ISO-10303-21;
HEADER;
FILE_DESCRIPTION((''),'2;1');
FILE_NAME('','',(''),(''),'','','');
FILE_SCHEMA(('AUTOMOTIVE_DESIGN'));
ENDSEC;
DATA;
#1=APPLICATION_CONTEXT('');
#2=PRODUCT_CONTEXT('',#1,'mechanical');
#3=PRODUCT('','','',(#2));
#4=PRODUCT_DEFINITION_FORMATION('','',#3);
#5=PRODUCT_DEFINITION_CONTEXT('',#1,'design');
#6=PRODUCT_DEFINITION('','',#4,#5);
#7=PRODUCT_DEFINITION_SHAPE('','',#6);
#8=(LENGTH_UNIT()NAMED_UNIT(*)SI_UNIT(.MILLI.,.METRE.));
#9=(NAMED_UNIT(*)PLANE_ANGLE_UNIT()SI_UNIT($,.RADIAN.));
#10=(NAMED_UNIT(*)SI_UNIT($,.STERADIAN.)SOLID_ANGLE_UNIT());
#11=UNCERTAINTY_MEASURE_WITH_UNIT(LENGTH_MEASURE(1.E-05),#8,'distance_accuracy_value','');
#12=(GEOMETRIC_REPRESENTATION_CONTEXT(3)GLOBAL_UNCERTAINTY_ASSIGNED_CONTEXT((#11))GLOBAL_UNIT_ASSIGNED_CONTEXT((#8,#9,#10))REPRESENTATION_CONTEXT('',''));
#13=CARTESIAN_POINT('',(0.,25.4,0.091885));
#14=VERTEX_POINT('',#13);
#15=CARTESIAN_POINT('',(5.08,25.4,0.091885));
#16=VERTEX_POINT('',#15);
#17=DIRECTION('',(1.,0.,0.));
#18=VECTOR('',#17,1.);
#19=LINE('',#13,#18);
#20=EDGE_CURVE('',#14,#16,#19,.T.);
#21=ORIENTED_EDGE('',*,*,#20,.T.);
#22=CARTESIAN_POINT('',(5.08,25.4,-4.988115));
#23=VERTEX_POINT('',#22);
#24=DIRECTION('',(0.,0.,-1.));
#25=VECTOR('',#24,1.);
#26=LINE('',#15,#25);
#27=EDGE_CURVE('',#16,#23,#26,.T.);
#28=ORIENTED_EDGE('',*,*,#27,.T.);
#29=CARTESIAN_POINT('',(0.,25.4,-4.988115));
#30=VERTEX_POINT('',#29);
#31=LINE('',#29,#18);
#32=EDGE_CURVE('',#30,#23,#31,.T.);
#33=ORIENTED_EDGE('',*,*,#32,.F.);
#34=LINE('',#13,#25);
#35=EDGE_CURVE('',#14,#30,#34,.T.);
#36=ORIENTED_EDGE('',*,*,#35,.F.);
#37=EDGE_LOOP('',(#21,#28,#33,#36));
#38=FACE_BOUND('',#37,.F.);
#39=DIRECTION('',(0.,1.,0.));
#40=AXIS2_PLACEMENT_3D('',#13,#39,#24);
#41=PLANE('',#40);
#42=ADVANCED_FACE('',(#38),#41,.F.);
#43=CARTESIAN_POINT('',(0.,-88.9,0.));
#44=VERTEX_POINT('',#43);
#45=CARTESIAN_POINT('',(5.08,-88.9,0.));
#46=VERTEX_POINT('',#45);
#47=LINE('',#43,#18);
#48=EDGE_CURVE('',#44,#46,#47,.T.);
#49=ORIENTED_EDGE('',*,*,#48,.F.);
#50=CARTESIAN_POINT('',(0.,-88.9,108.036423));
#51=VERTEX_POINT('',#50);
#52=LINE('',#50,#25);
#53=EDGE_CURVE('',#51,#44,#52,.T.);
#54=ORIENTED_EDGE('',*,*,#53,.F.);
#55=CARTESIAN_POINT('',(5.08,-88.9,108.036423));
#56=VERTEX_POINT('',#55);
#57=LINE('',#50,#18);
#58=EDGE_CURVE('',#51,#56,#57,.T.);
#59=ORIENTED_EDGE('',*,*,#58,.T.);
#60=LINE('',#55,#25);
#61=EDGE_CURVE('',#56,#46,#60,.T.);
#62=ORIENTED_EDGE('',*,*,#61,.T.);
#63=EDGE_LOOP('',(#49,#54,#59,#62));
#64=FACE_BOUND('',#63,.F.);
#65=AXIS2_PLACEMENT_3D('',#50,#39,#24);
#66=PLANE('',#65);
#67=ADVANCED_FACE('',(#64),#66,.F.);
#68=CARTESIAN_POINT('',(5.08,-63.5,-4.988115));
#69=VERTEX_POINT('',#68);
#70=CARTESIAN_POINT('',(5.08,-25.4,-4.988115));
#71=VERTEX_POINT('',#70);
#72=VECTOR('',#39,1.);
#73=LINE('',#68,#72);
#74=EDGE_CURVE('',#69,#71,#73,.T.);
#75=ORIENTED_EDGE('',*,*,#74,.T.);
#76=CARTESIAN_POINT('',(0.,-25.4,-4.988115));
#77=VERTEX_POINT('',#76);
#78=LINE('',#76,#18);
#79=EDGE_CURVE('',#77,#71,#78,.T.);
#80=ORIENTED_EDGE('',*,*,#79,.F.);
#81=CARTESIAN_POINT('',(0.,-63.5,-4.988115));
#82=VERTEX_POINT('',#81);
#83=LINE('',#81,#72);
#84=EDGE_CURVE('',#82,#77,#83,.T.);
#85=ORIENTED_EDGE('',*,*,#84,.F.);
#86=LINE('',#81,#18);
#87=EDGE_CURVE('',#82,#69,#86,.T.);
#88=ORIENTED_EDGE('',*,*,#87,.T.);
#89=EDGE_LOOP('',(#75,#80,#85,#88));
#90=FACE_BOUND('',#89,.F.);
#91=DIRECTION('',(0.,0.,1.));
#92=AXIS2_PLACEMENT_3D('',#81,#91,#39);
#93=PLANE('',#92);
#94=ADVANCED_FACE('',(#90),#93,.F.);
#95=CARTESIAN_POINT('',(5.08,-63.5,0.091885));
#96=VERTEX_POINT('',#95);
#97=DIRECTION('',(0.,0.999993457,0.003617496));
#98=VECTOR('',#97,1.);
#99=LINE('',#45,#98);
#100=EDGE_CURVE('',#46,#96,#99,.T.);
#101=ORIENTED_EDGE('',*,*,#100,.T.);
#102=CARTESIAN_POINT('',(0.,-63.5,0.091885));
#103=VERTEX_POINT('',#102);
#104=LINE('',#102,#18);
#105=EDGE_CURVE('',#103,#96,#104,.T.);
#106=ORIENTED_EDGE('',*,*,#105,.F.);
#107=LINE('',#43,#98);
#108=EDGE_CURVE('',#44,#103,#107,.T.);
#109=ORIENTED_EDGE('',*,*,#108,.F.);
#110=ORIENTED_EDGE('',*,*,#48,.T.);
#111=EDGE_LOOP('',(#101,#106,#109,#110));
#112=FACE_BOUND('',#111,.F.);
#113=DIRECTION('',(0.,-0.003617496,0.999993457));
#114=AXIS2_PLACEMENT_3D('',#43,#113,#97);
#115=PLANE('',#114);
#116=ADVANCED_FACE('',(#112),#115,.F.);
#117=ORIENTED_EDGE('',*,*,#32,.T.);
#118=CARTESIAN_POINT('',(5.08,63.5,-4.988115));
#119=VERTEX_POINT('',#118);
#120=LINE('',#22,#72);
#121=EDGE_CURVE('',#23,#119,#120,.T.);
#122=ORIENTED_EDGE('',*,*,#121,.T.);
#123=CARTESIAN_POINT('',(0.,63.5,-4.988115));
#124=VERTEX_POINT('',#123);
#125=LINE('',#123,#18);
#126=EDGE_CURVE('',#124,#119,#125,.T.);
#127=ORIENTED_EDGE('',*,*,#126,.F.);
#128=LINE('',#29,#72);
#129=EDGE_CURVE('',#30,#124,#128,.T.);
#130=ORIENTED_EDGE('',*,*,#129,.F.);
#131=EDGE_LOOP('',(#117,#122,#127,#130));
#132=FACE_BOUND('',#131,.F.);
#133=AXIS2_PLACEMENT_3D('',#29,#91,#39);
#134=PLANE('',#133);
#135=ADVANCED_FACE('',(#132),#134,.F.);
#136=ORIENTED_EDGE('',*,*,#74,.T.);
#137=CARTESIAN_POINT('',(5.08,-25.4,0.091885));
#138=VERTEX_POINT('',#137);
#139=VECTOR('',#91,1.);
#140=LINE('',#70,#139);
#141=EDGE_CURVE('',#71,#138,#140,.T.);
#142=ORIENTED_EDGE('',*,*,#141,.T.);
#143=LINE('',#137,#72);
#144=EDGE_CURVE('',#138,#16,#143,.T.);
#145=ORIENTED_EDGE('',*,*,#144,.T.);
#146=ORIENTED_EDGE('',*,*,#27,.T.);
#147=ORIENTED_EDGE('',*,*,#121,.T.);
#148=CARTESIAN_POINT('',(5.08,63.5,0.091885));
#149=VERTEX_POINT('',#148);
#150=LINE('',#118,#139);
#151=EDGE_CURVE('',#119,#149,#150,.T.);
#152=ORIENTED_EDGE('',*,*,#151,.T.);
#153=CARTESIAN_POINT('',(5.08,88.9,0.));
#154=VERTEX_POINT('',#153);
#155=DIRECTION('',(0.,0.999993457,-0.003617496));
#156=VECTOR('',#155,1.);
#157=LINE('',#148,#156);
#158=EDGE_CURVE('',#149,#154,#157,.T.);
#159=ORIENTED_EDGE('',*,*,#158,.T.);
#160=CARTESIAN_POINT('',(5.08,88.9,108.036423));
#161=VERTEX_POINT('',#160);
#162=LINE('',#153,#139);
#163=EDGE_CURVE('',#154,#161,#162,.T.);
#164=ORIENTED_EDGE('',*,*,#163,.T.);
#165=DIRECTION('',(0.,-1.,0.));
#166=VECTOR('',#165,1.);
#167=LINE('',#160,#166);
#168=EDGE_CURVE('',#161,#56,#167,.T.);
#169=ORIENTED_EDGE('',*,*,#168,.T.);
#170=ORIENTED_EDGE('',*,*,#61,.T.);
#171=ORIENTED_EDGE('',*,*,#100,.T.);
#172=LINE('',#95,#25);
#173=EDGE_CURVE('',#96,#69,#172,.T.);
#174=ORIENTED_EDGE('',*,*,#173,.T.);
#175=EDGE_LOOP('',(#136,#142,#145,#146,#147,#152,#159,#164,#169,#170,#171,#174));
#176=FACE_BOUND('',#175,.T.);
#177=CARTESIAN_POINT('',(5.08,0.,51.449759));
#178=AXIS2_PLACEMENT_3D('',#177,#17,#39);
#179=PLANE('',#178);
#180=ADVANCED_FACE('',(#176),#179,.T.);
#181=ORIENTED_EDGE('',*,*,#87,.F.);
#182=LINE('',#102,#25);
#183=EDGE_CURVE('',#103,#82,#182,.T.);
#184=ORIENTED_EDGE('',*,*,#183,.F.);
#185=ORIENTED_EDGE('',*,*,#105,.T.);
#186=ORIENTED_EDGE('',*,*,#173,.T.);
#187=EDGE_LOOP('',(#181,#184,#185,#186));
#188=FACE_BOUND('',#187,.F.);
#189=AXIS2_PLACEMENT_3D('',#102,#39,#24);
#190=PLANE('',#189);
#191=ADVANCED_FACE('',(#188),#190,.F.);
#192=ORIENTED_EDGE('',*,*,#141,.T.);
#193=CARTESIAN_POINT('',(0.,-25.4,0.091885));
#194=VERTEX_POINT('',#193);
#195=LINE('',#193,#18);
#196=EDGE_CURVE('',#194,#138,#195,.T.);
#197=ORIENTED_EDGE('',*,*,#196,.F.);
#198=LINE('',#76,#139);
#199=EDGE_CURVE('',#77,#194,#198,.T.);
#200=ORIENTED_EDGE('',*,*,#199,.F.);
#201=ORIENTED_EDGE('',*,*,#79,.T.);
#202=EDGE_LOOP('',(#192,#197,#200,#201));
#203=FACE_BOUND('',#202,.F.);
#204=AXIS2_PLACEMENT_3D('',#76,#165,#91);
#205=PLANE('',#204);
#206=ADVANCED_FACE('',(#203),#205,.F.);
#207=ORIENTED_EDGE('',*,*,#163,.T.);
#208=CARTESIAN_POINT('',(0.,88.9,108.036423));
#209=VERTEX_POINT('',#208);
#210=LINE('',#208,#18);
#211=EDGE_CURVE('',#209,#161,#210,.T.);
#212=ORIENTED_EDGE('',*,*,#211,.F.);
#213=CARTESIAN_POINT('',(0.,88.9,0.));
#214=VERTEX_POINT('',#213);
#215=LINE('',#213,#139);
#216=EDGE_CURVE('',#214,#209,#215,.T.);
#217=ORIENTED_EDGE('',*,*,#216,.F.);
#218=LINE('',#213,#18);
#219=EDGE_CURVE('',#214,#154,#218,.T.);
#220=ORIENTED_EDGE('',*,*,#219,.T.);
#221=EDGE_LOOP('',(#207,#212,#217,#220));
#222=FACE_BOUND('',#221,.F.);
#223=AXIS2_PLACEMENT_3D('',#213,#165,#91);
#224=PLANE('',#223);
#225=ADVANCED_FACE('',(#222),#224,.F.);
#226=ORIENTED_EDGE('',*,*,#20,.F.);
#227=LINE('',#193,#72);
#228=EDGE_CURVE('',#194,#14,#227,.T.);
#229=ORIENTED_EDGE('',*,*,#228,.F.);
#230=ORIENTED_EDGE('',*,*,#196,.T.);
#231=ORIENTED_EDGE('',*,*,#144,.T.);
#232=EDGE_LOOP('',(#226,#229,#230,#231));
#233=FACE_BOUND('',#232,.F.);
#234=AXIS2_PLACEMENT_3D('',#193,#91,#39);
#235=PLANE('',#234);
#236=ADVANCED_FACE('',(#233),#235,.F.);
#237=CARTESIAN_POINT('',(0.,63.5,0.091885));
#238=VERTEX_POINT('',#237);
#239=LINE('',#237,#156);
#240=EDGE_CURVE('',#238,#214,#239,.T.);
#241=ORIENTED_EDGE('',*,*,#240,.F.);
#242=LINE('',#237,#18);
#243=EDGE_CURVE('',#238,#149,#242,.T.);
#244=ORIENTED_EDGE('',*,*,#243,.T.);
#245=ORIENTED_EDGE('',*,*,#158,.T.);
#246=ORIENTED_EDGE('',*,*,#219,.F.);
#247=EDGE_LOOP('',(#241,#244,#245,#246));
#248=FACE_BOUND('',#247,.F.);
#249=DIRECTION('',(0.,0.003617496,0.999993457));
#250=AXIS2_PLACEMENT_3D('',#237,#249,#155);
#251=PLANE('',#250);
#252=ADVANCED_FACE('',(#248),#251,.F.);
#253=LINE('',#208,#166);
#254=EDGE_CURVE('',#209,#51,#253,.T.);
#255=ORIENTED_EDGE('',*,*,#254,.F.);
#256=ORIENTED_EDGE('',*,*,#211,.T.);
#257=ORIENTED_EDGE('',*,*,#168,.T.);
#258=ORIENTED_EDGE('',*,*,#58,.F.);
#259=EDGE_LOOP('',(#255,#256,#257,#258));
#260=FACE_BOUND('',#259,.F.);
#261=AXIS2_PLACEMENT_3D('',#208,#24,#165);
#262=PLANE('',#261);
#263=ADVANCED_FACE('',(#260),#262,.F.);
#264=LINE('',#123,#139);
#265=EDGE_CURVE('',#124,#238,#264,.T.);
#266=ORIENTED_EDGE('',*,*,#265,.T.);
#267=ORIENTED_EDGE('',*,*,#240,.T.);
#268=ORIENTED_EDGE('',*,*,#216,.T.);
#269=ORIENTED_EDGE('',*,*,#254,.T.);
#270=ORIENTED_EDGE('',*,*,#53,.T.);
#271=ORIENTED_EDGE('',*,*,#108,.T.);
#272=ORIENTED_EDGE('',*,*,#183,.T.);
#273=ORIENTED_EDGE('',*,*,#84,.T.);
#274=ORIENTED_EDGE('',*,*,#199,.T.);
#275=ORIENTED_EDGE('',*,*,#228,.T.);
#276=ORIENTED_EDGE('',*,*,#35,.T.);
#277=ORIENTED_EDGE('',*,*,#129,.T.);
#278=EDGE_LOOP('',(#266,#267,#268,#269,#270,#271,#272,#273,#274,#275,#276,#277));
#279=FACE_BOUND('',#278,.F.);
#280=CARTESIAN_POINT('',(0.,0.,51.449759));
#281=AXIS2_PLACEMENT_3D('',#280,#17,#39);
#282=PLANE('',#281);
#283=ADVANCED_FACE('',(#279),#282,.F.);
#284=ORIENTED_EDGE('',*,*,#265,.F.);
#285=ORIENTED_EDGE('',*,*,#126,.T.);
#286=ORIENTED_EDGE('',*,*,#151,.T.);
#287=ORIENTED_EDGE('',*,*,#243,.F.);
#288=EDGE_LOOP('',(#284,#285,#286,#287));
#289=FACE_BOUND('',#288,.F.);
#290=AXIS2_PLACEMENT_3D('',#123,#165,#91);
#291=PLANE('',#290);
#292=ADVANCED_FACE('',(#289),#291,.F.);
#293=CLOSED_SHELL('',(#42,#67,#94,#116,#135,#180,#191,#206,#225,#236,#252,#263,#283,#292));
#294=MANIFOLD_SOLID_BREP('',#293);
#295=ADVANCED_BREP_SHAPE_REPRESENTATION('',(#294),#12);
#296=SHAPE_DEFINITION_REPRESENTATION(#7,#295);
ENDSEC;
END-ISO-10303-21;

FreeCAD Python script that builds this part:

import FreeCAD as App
import Part
import Sketcher
from FreeCAD import Vector
Q = App.Units.Quantity


def add_polygon(sketch, points):
    """Adds a closed chain of lines whose ends are joined by coincident constraints."""
    first, n = sketch.GeometryCount, len(points)
    for a, b in zip(points, points[1:] + points[:1]):
        sketch.addGeometry(Part.LineSegment(App.Vector(*a, 0), App.Vector(*b, 0)), False)
    for i in range(n):
        sketch.addConstraint(Sketcher.Constraint("Coincident", first + i, 2, first + (i + 1) % n, 1))

doc = App.newDocument("Part")
body = doc.addObject("PartDesign::Body", "Body")

# Sketch on YZ plane
sketch1 = body.newObject("Sketcher::SketchObject", "Sketch")
sketch1.AttachmentSupport = (doc.getObject("YZ_Plane"), [""])
sketch1.MapMode = "FlatFace"
add_polygon(sketch1, [(-25.4, 0.091885), (25.4, 0.091885), (25.4, -4.988115), (63.5, -4.988115), (63.5, 0.091885), (88.9, 0), (88.9, 108.036423), (-88.9, 108.036423), (-88.9, 0), (-63.5, 0.091885), (-63.5, -4.988115), (-25.4, -4.988115)])  # lines 0-11
sketch1.addConstraint([
    Sketcher.Constraint("Horizontal", 0),
    Sketcher.Constraint("Vertical", 1),
    Sketcher.Constraint("Horizontal", 2),
    Sketcher.Constraint("Vertical", 3),
    Sketcher.Constraint("Vertical", 5),
    Sketcher.Constraint("Horizontal", 6),
    Sketcher.Constraint("Vertical", 7),
    Sketcher.Constraint("Vertical", 9),
    Sketcher.Constraint("Horizontal", 10),
    Sketcher.Constraint("Vertical", 11),
    Sketcher.Constraint("Symmetric", 4, 2, 7, 2, -1, 1),
    Sketcher.Constraint("Symmetric", 3, 2, 8, 2, -2),
    Sketcher.Constraint("Symmetric", 1, 2, 10, 2, -2),
    Sketcher.Constraint("PointOnObject", 4, 2, -1),
    Sketcher.Constraint("Horizontal", 0, 2, 3, 2),
    Sketcher.Constraint("DistanceX", 0, 1, 0, 2, Q("2 in")),
    Sketcher.Constraint("DistanceX", 6, 2, 6, 1, Q("7 in")),
    Sketcher.Constraint("DistanceX", 2, 1, 2, 2, Q("1.5 in")),
    Sketcher.Constraint("DistanceY", 1, 2, 1, 1, Q("0.2 in")),
    Sketcher.Constraint("DistanceY", 5, 1, 5, 2, Q("108.036423 mm")),
    Sketcher.Constraint("DistanceY", -1, 1, 0, 2, Q("0.091885 mm")),
])
pad1 = body.newObject("PartDesign::Pad", "Pad")
pad1.Profile = sketch1
pad1.Length = Q("0.2 in")

doc.recompute()
